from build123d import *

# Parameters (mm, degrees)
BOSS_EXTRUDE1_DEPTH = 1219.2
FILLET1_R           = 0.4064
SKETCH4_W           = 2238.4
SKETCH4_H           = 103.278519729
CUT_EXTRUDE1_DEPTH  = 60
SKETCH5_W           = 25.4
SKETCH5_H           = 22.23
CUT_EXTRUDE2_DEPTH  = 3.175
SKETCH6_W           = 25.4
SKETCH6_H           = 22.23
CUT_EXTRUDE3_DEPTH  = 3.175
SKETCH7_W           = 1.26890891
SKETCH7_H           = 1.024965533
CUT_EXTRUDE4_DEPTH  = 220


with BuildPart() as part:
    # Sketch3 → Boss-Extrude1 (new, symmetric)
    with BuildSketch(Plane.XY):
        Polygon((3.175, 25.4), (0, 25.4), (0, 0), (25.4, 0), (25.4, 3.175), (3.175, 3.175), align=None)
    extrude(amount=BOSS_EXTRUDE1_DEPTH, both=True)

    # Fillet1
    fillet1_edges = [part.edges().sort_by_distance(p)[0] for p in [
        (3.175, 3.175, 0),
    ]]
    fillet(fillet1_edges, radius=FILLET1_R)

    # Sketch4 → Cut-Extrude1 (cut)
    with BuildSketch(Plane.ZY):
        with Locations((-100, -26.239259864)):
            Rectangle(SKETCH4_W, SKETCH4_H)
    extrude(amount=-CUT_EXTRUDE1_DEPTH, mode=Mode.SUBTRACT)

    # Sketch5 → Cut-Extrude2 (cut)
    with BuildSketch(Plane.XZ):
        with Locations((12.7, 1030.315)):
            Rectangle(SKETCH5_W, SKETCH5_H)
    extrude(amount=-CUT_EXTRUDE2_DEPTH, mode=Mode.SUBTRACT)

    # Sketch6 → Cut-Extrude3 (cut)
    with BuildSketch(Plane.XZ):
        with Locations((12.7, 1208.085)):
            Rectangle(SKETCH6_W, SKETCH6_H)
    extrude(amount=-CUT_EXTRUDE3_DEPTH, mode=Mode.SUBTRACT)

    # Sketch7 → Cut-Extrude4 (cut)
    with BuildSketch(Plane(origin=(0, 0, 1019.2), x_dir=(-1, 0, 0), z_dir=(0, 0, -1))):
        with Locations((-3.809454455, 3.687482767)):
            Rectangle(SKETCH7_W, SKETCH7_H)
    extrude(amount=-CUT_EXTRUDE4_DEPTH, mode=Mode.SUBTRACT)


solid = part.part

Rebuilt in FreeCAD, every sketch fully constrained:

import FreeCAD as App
import Part
import Sketcher
from FreeCAD import Vector
Q = App.Units.Quantity


def edges_at(feature, points):
    """Names of the edges that pass closest to the given points."""
    edges = feature.Shape.Edges
    near = lambda p: min(range(len(edges)), key=lambda i: edges[i].distToShape(Part.Vertex(*p))[0])
    return sorted({f"Edge{near(p) + 1}" for p in points})

doc = App.newDocument("Part")
body = doc.addObject("PartDesign::Body", "Body")

# Sketch on XY plane
sketch1 = body.newObject("Sketcher::SketchObject", "Sketch")
sketch1.AttachmentSupport = (doc.getObject("XY_Plane"), [""])
sketch1.MapMode = "FlatFace"
sketch1.addGeometry(Part.LineSegment(Vector(3.2, 25.4, 0), Vector(0, 25.4, 0)), False)
sketch1.addGeometry(Part.LineSegment(Vector(0, 25.4, 0), Vector(0, 0, 0)), False)
sketch1.addGeometry(Part.LineSegment(Vector(0, 0, 0), Vector(25.4, 0, 0)), False)
sketch1.addGeometry(Part.LineSegment(Vector(25.4, 0, 0), Vector(25.4, 3.2, 0)), False)
sketch1.addGeometry(Part.LineSegment(Vector(25.4, 3.2, 0), Vector(3.2, 3.2, 0)), False)
sketch1.addGeometry(Part.LineSegment(Vector(3.2, 3.2, 0), Vector(3.2, 25.4, 0)), False)
sketch1.addConstraint(Sketcher.Constraint("Coincident", 0, 2, 1, 1))
sketch1.addConstraint(Sketcher.Constraint("Coincident", 1, 2, 2, 1))
sketch1.addConstraint(Sketcher.Constraint("Coincident", 2, 2, 3, 1))
sketch1.addConstraint(Sketcher.Constraint("Coincident", 3, 2, 4, 1))
sketch1.addConstraint(Sketcher.Constraint("Coincident", 4, 2, 5, 1))
sketch1.addConstraint(Sketcher.Constraint("Coincident", 5, 2, 0, 1))
sketch1.addConstraint(Sketcher.Constraint("Horizontal", 0))
sketch1.addConstraint(Sketcher.Constraint("Vertical", 1))
sketch1.addConstraint(Sketcher.Constraint("Horizontal", 2))
sketch1.addConstraint(Sketcher.Constraint("Vertical", 3))
sketch1.addConstraint(Sketcher.Constraint("Horizontal", 4))
sketch1.addConstraint(Sketcher.Constraint("Vertical", 5))
sketch1.addConstraint(Sketcher.Constraint("Coincident", 1, 2, -1, 1))
sketch1.addConstraint(Sketcher.Constraint("Equal", 2, 1))
sketch1.addConstraint(Sketcher.Constraint("Equal", 0, 3))
sketch1.addConstraint(Sketcher.Constraint("DistanceX", 2, 1, 2, 2, Q("1 in")))
sketch1.addConstraint(Sketcher.Constraint("DistanceX", 0, 2, 0, 1, Q("0.125 in")))
pad1 = body.newObject("PartDesign::Pad", "Pad")
pad1.Profile = sketch1
pad1.Length = Q("96 in")
pad1.Midplane = True
doc.recompute()

fillet = body.newObject("PartDesign::Fillet", "Fillet")
fillet.Base = (pad1, edges_at(pad1, [(3.175, 3.175, 0)]))
fillet.Radius = Q("0.016 in")

# Sketch on YZ plane
sketch2 = body.newObject("Sketcher::SketchObject", "Sketch001")
sketch2.AttachmentSupport = (doc.getObject("YZ_Plane"), [""])
sketch2.MapMode = "FlatFace"
sketch2.addGeometry(Part.LineSegment(Vector(25, -1219, 0), Vector(-78, -1219, 0)), False)
sketch2.addGeometry(Part.LineSegment(Vector(-78, -1219, 0), Vector(-78, 1019, 0)), False)
sketch2.addGeometry(Part.LineSegment(Vector(-78, 1019, 0), Vector(25, 1019, 0)), False)
sketch2.addGeometry(Part.LineSegment(Vector(25, 1019, 0), Vector(25, -1219, 0)), False)
sketch2.addConstraint(Sketcher.Constraint("Coincident", 0, 2, 1, 1))
sketch2.addConstraint(Sketcher.Constraint("Coincident", 1, 2, 2, 1))
sketch2.addConstraint(Sketcher.Constraint("Coincident", 2, 2, 3, 1))
sketch2.addConstraint(Sketcher.Constraint("Coincident", 3, 2, 0, 1))
sketch2.addConstraint(Sketcher.Constraint("Horizontal", 0))
sketch2.addConstraint(Sketcher.Constraint("Vertical", 1))
sketch2.addConstraint(Sketcher.Constraint("Horizontal", 2))
sketch2.addConstraint(Sketcher.Constraint("Vertical", 3))
sketch2.addConstraint(Sketcher.Constraint("DistanceY", 0, 2, -1, 1, Q("48 in")))
sketch2.addConstraint(Sketcher.Constraint("DistanceX", -1, 1, 2, 2, Q("1 in")))
sketch2.addConstraint(Sketcher.Constraint("DistanceY", 1, 1, 1, 2, Q("2238.4 mm")))
sketch2.addConstraint(Sketcher.Constraint("DistanceX", 0, 2, 0, 1, Q("103.27852 mm")))
pocket1 = body.newObject("PartDesign::Pocket", "Pocket")
pocket1.Profile = sketch2
pocket1.Length = 60
pocket1.Reversed = True

# Sketch on XZ plane
sketch3 = body.newObject("Sketcher::SketchObject", "Sketch002")
sketch3.AttachmentSupport = (doc.getObject("XZ_Plane"), [""])
sketch3.MapMode = "FlatFace"
sketch3.addGeometry(Part.LineSegment(Vector(0, 1041, 0), Vector(0, 1019, 0)), False)
sketch3.addGeometry(Part.LineSegment(Vector(0, 1019, 0), Vector(25, 1019, 0)), False)
sketch3.addGeometry(Part.LineSegment(Vector(25, 1019, 0), Vector(25, 1041, 0)), False)
sketch3.addGeometry(Part.LineSegment(Vector(25, 1041, 0), Vector(0, 1041, 0)), False)
sketch3.addConstraint(Sketcher.Constraint("Coincident", 0, 2, 1, 1))
sketch3.addConstraint(Sketcher.Constraint("Coincident", 1, 2, 2, 1))
sketch3.addConstraint(Sketcher.Constraint("Coincident", 2, 2, 3, 1))
sketch3.addConstraint(Sketcher.Constraint("Coincident", 3, 2, 0, 1))
sketch3.addConstraint(Sketcher.Constraint("Vertical", 0))
sketch3.addConstraint(Sketcher.Constraint("Horizontal", 1))
sketch3.addConstraint(Sketcher.Constraint("Vertical", 2))
sketch3.addConstraint(Sketcher.Constraint("Horizontal", 3))
sketch3.addConstraint(Sketcher.Constraint("PointOnObject", 0, 2, -2))
sketch3.addConstraint(Sketcher.Constraint("DistanceX", 1, 1, 1, 2, Q("1 in")))
sketch3.addConstraint(Sketcher.Constraint("DistanceY", 0, 2, 0, 1, Q("22.23 mm")))
sketch3.addConstraint(Sketcher.Constraint("DistanceY", -1, 1, 0, 2, Q("1019.2 mm")))
pocket2 = body.newObject("PartDesign::Pocket", "Pocket001")
pocket2.Profile = sketch3
pocket2.Length = Q("0.125 in")

# Sketch on XZ plane
sketch4 = body.newObject("Sketcher::SketchObject", "Sketch003")
sketch4.AttachmentSupport = (doc.getObject("XZ_Plane"), [""])
sketch4.MapMode = "FlatFace"
sketch4.addGeometry(Part.LineSegment(Vector(0, 1219, 0), Vector(0, 1197, 0)), False)
sketch4.addGeometry(Part.LineSegment(Vector(0, 1197, 0), Vector(25, 1197, 0)), False)
sketch4.addGeometry(Part.LineSegment(Vector(25, 1197, 0), Vector(25, 1219, 0)), False)
sketch4.addGeometry(Part.LineSegment(Vector(25, 1219, 0), Vector(0, 1219, 0)), False)
sketch4.addConstraint(Sketcher.Constraint("Coincident", 0, 2, 1, 1))
sketch4.addConstraint(Sketcher.Constraint("Coincident", 1, 2, 2, 1))
sketch4.addConstraint(Sketcher.Constraint("Coincident", 2, 2, 3, 1))
sketch4.addConstraint(Sketcher.Constraint("Coincident", 3, 2, 0, 1))
sketch4.addConstraint(Sketcher.Constraint("Vertical", 0))
sketch4.addConstraint(Sketcher.Constraint("Horizontal", 1))
sketch4.addConstraint(Sketcher.Constraint("Vertical", 2))
sketch4.addConstraint(Sketcher.Constraint("Horizontal", 3))
sketch4.addConstraint(Sketcher.Constraint("PointOnObject", 0, 2, -2))
sketch4.addConstraint(Sketcher.Constraint("DistanceX", 1, 1, 1, 2, Q("1 in")))
sketch4.addConstraint(Sketcher.Constraint("DistanceY", -1, 1, 2, 2, Q("48 in")))
sketch4.addConstraint(Sketcher.Constraint("DistanceY", 0, 2, 0, 1, Q("22.23 mm")))
pocket3 = body.newObject("PartDesign::Pocket", "Pocket002")
pocket3.Profile = sketch4
pocket3.Length = Q("0.125 in")

# Sketch on XY plane
sketch5 = body.newObject("Sketcher::SketchObject", "Sketch004")
sketch5.AttachmentSupport = (doc.getObject("XY_Plane"), [""])
sketch5.MapMode = "FlatFace"
sketch5.AttachmentOffset = App.Placement(Vector(0, 0, 1019.2), App.Rotation())
sketch5.addGeometry(Part.LineSegment(Vector(4.4, 4.2, 0), Vector(4.4, 3.2, 0)), False)
sketch5.addGeometry(Part.LineSegment(Vector(4.4, 3.2, 0), Vector(3.2, 3.2, 0)), False)
sketch5.addGeometry(Part.LineSegment(Vector(3.2, 3.2, 0), Vector(3.2, 4.2, 0)), False)
sketch5.addGeometry(Part.LineSegment(Vector(3.2, 4.2, 0), Vector(4.4, 4.2, 0)), False)
sketch5.addConstraint(Sketcher.Constraint("Coincident", 0, 2, 1, 1))
sketch5.addConstraint(Sketcher.Constraint("Coincident", 1, 2, 2, 1))
sketch5.addConstraint(Sketcher.Constraint("Coincident", 2, 2, 3, 1))
sketch5.addConstraint(Sketcher.Constraint("Coincident", 3, 2, 0, 1))
sketch5.addConstraint(Sketcher.Constraint("Vertical", 0))
sketch5.addConstraint(Sketcher.Constraint("Horizontal", 1))
sketch5.addConstraint(Sketcher.Constraint("Vertical", 2))
sketch5.addConstraint(Sketcher.Constraint("Horizontal", 3))
sketch5.addConstraint(Sketcher.Constraint("DistanceY", -1, 1, 0, 2, Q("0.125 in")))
sketch5.addConstraint(Sketcher.Constraint("DistanceX", -1, 1, 1, 2, Q("0.125 in")))
sketch5.addConstraint(Sketcher.Constraint("DistanceX", 1, 2, 1, 1, Q("1.268909 mm")))
sketch5.addConstraint(Sketcher.Constraint("DistanceY", 0, 2, 0, 1, Q("1.024966 mm")))
pocket4 = body.newObject("PartDesign::Pocket", "Pocket003")
pocket4.Profile = sketch5
pocket4.Length = 220
pocket4.Reversed = True

doc.recompute()
